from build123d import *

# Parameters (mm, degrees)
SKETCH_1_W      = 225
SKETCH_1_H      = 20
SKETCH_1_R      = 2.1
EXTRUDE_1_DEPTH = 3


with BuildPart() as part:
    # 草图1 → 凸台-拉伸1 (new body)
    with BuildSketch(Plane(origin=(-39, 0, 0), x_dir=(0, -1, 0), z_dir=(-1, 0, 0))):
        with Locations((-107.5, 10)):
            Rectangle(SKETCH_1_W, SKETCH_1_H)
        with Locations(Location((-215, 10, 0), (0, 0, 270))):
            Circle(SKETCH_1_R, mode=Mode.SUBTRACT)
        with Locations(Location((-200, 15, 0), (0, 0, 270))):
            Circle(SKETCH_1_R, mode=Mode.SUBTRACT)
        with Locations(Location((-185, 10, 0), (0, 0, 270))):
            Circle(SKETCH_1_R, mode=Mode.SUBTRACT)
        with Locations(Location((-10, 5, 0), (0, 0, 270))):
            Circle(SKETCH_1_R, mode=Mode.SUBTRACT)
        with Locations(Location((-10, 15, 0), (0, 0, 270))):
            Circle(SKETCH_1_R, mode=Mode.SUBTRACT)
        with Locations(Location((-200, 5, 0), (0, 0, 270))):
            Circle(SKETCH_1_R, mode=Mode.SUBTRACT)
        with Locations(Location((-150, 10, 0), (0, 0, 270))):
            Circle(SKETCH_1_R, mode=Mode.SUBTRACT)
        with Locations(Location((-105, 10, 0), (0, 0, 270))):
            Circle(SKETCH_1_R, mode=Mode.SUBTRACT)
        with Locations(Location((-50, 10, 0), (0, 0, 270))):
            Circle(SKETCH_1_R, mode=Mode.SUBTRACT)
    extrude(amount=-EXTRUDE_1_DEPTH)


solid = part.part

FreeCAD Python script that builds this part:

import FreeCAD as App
import Part
import Sketcher
Q = App.Units.Quantity


def add_polygon(sketch, points):
    """Adds a closed chain of lines whose ends are joined by coincident constraints."""
    first, n = sketch.GeometryCount, len(points)
    for a, b in zip(points, points[1:] + points[:1]):
        sketch.addGeometry(Part.LineSegment(App.Vector(*a, 0), App.Vector(*b, 0)), False)
    for i in range(n):
        sketch.addConstraint(Sketcher.Constraint("Coincident", first + i, 2, first + (i + 1) % n, 1))

doc = App.newDocument("Part")
body = doc.addObject("PartDesign::Body", "Body")

# Sketch on YZ plane
sketch1 = body.newObject("Sketcher::SketchObject", "Sketch")
sketch1.AttachmentSupport = (doc.getObject("YZ_Plane"), [""])
sketch1.MapMode = "FlatFace"
sketch1.AttachmentOffset = App.Placement(App.Vector(0, 0, -39), App.Rotation())
add_polygon(sketch1, [(220, 20), (220, 0), (-5, 0), (-5, 20)])  # lines 0-3
sketch1.addGeometry(Part.Circle(App.Vector(200, 5, 0), App.Vector(0, 0, 1), 2.1), False)  # 4
sketch1.addGeometry(Part.Circle(App.Vector(10, 5, 0), App.Vector(0, 0, 1), 2.1), False)  # 5
sketch1.addGeometry(Part.Circle(App.Vector(215, 10, 0), App.Vector(0, 0, 1), 2.1), False)  # 6
sketch1.addGeometry(Part.Circle(App.Vector(185, 10, 0), App.Vector(0, 0, 1), 2.1), False)  # 7
sketch1.addGeometry(Part.Circle(App.Vector(150, 10, 0), App.Vector(0, 0, 1), 2.1), False)  # 8
sketch1.addGeometry(Part.Circle(App.Vector(200, 15, 0), App.Vector(0, 0, 1), 2.1), False)  # 9
sketch1.addGeometry(Part.Circle(App.Vector(105, 10, 0), App.Vector(0, 0, 1), 2.1), False)  # 10
sketch1.addGeometry(Part.Circle(App.Vector(50, 10, 0), App.Vector(0, 0, 1), 2.1), False)  # 11
sketch1.addGeometry(Part.Circle(App.Vector(10, 15, 0), App.Vector(0, 0, 1), 2.1), False)  # 12
sketch1.addConstraint([
    Sketcher.Constraint("Vertical", 0),
    Sketcher.Constraint("Horizontal", 1),
    Sketcher.Constraint("Vertical", 2),
    Sketcher.Constraint("Horizontal", 3),
    Sketcher.Constraint("Equal", 4, 5),
    Sketcher.Constraint("Equal", 5, 6),
    Sketcher.Constraint("Equal", 6, 7),
    Sketcher.Constraint("Equal", 7, 8),
    Sketcher.Constraint("Equal", 8, 9),
    Sketcher.Constraint("Equal", 9, 10),
    Sketcher.Constraint("Equal", 10, 11),
    Sketcher.Constraint("Equal", 11, 12),
    Sketcher.Constraint("PointOnObject", 0, 2, -1),
    Sketcher.Constraint("Horizontal", 4, 3, 5, 3),
    Sketcher.Constraint("Horizontal", 6, 3, 7, 3),
    Sketcher.Constraint("Horizontal", 7, 3, 8, 3),
    Sketcher.Constraint("Horizontal", 8, 3, 10, 3),
    Sketcher.Constraint("Horizontal", 10, 3, 11, 3),
    Sketcher.Constraint("Horizontal", 9, 3, 12, 3),
    Sketcher.Constraint("Vertical", 4, 3, 9, 3),
    Sketcher.Constraint("Vertical", 5, 3, 12, 3),
    Sketcher.Constraint("Diameter", 4, Q("4.2 mm")),
    Sketcher.Constraint("DistanceX", 1, 2, 1, 1, Q("225 mm")),
    Sketcher.Constraint("DistanceY", 0, 2, 0, 1, Q("20 mm")),
    Sketcher.Constraint("DistanceX", -1, 1, 4, 3, Q("200 mm")),
    Sketcher.Constraint("DistanceY", -1, 1, 4, 3, Q("5 mm")),
    Sketcher.Constraint("DistanceX", -1, 1, 5, 3, Q("10 mm")),
    Sketcher.Constraint("DistanceX", -1, 1, 6, 3, Q("215 mm")),
    Sketcher.Constraint("DistanceY", -1, 1, 6, 3, Q("10 mm")),
    Sketcher.Constraint("DistanceX", -1, 1, 7, 3, Q("185 mm")),
    Sketcher.Constraint("DistanceX", -1, 1, 8, 3, Q("150 mm")),
    Sketcher.Constraint("DistanceY", -1, 1, 9, 3, Q("15 mm")),
    Sketcher.Constraint("DistanceX", -1, 1, 10, 3, Q("105 mm")),
    Sketcher.Constraint("DistanceX", -1, 1, 11, 3, Q("50 mm")),
    Sketcher.Constraint("DistanceX", -1, 1, 0, 2, Q("220 mm")),
])
pad1 = body.newObject("PartDesign::Pad", "Pad")
pad1.Profile = sketch1
pad1.Length = 3

doc.recompute()
